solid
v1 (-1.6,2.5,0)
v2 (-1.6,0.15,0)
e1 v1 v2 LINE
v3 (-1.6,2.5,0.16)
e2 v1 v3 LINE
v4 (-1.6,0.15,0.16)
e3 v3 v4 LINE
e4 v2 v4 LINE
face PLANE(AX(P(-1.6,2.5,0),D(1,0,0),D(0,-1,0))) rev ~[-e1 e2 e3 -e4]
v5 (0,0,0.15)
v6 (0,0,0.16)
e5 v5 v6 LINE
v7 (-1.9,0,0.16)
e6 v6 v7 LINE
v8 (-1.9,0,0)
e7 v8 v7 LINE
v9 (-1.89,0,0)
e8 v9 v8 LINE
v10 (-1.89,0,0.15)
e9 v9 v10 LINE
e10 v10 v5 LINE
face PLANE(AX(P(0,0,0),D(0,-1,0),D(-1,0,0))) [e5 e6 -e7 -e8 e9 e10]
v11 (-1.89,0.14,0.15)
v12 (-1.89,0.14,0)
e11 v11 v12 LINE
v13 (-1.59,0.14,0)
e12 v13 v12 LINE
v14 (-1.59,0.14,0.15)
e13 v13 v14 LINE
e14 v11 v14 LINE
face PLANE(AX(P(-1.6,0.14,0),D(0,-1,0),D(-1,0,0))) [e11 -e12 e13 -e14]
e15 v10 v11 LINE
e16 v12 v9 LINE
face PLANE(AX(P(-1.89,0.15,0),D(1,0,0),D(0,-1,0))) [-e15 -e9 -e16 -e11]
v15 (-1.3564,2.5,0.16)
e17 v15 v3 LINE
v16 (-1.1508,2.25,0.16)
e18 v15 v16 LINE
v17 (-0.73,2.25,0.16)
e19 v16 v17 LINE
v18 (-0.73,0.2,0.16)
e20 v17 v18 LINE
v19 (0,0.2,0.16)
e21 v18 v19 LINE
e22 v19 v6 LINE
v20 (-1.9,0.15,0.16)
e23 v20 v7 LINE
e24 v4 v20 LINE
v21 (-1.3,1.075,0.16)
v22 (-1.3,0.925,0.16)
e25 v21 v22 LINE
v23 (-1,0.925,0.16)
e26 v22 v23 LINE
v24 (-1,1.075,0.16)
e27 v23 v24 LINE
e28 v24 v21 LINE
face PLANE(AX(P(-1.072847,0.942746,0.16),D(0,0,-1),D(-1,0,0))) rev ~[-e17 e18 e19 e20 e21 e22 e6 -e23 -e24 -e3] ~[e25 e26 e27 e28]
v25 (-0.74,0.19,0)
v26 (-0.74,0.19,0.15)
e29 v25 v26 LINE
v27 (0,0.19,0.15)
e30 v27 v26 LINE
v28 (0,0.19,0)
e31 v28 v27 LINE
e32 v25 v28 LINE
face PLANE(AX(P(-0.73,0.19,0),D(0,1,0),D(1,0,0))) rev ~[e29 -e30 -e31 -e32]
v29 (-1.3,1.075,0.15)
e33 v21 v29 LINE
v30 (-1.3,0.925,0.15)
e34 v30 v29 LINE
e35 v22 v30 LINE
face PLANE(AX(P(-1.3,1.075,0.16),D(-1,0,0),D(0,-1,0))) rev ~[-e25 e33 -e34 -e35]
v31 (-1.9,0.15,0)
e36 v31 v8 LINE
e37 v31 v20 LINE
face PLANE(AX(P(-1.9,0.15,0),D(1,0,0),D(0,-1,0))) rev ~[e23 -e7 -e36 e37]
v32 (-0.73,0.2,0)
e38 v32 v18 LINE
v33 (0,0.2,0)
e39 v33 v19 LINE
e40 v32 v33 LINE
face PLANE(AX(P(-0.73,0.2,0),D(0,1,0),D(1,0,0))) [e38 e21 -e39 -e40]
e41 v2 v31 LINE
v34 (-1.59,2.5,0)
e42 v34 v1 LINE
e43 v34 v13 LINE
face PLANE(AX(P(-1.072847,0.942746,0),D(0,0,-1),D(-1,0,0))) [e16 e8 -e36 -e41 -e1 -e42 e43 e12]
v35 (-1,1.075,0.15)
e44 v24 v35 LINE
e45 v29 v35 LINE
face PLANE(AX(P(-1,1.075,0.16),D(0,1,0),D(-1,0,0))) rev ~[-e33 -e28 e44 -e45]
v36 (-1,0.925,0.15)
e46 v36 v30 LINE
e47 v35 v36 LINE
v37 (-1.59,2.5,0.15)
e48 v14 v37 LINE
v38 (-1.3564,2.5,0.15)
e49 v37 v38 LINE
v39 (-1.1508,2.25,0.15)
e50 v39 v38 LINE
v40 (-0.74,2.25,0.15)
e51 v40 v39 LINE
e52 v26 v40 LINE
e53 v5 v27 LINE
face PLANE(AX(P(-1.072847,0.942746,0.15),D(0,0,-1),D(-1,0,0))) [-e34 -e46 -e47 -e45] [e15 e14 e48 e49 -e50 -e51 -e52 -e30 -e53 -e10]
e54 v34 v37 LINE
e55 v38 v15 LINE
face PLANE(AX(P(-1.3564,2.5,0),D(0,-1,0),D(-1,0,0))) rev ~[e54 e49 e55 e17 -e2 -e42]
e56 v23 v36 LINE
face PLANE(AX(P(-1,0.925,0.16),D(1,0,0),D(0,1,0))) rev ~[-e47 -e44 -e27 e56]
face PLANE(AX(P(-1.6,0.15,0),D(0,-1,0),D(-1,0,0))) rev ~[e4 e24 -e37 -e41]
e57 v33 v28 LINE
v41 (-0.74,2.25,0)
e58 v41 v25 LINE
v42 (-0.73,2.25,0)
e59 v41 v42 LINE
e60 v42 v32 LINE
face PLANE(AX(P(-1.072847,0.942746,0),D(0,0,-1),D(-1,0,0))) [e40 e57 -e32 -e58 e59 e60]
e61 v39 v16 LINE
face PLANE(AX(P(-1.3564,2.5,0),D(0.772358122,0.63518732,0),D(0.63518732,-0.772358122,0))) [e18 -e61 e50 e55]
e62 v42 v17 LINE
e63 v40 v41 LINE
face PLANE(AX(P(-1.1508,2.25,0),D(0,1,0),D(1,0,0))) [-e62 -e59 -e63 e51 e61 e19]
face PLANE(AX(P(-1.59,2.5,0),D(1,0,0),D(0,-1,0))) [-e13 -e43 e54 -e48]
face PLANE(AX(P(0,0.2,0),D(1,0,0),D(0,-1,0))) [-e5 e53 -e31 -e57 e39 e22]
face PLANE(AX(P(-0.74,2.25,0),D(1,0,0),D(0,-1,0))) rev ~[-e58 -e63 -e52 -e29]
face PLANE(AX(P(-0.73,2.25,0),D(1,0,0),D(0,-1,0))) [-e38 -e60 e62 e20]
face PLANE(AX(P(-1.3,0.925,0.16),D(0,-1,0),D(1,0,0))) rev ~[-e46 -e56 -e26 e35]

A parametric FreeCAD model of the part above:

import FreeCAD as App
import Part
import Sketcher
Q = App.Units.Quantity


def faces_at(feature, points):
    """Names of the faces that lie closest to the given points."""
    faces = feature.Shape.Faces
    near = lambda p: min(range(len(faces)), key=lambda i: faces[i].distToShape(Part.Vertex(*p))[0])
    return sorted({f"Face{near(p) + 1}" for p in points})

doc = App.newDocument("Part")
body = doc.addObject("PartDesign::Body", "Body")

# Sketch on XY plane
sketch1 = body.newObject("Sketcher::SketchObject", "Sketch")
sketch1.AttachmentSupport = (doc.getObject("XY_Plane"), [""])
sketch1.MapMode = "FlatFace"
sketch1.addGeometry(Part.LineSegment(App.Vector(0, 0, 0), App.Vector(0, 0.2, 0)), False)
sketch1.addGeometry(Part.LineSegment(App.Vector(0, 0.2, 0), App.Vector(-0.73, 0.2, 0)), False)
sketch1.addGeometry(Part.LineSegment(App.Vector(-0.73, 0.2, 0), App.Vector(-0.73, 2.25, 0)), False)
sketch1.addGeometry(Part.LineSegment(App.Vector(-0.73, 2.25, 0), App.Vector(-1.15, 2.25, 0)), False)
sketch1.addGeometry(Part.LineSegment(App.Vector(-1.15, 2.25, 0), App.Vector(-1.36, 2.5, 0)), False)
sketch1.addGeometry(Part.LineSegment(App.Vector(-1.36, 2.5, 0), App.Vector(-1.6, 2.5, 0)), False)
sketch1.addGeometry(Part.LineSegment(App.Vector(-1.6, 2.5, 0), App.Vector(-1.6, 0.15, 0)), False)
sketch1.addGeometry(Part.LineSegment(App.Vector(-1.6, 0.15, 0), App.Vector(-1.9, 0.15, 0)), False)
sketch1.addGeometry(Part.LineSegment(App.Vector(-1.9, 0.15, 0), App.Vector(-1.9, 0, 0)), False)
sketch1.addGeometry(Part.LineSegment(App.Vector(-1.9, 0, 0), App.Vector(0, 0, 0)), False)
sketch1.addConstraint(Sketcher.Constraint("Coincident", 0, 2, 1, 1))
sketch1.addConstraint(Sketcher.Constraint("Coincident", 1, 2, 2, 1))
sketch1.addConstraint(Sketcher.Constraint("Coincident", 2, 2, 3, 1))
sketch1.addConstraint(Sketcher.Constraint("Coincident", 3, 2, 4, 1))
sketch1.addConstraint(Sketcher.Constraint("Coincident", 4, 2, 5, 1))
sketch1.addConstraint(Sketcher.Constraint("Coincident", 5, 2, 6, 1))
sketch1.addConstraint(Sketcher.Constraint("Coincident", 6, 2, 7, 1))
sketch1.addConstraint(Sketcher.Constraint("Coincident", 7, 2, 8, 1))
sketch1.addConstraint(Sketcher.Constraint("Coincident", 8, 2, 9, 1))
sketch1.addConstraint(Sketcher.Constraint("Coincident", 9, 2, 0, 1))
sketch1.addConstraint(Sketcher.Constraint("Vertical", 0))
sketch1.addConstraint(Sketcher.Constraint("Horizontal", 1))
sketch1.addConstraint(Sketcher.Constraint("Vertical", 2))
sketch1.addConstraint(Sketcher.Constraint("Horizontal", 3))
sketch1.addConstraint(Sketcher.Constraint("Horizontal", 5))
sketch1.addConstraint(Sketcher.Constraint("Vertical", 6))
sketch1.addConstraint(Sketcher.Constraint("Horizontal", 7))
sketch1.addConstraint(Sketcher.Constraint("Vertical", 8))
sketch1.addConstraint(Sketcher.Constraint("Horizontal", 9))
sketch1.addConstraint(Sketcher.Constraint("Coincident", 9, 2, -1, 1))
sketch1.addConstraint(Sketcher.Constraint("DistanceX", 9, 1, 9, 2, Q("1.9 mm")))
sketch1.addConstraint(Sketcher.Constraint("DistanceX", 1, 2, 1, 1, Q("0.73 mm")))
sketch1.addConstraint(Sketcher.Constraint("DistanceX", 7, 2, 7, 1, Q("0.3 mm")))
sketch1.addConstraint(Sketcher.Constraint("DistanceY", 0, 1, 0, 2, Q("0.2 mm")))
sketch1.addConstraint(Sketcher.Constraint("DistanceY", 2, 1, 2, 2, Q("2.05 mm")))
sketch1.addConstraint(Sketcher.Constraint("DistanceY", 6, 2, 6, 1, Q("2.35 mm")))
sketch1.addConstraint(Sketcher.Constraint("DistanceY", 8, 2, 8, 1, Q("0.15 mm")))
sketch1.addConstraint(Sketcher.Constraint("DistanceX", 3, 2, 3, 1, Q("0.4208 mm")))
sketch1.addConstraint(Sketcher.Constraint("DistanceX", 5, 2, 5, 1, Q("0.2436 mm")))
pad1 = body.newObject("PartDesign::Pad", "Pad")
pad1.Profile = sketch1
pad1.Length = 0.16
doc.recompute()

thickness = body.newObject("PartDesign::Thickness", "Thickness")
thickness.Base = (pad1, faces_at(pad1, [
    (-0.931, 0.442, 0),
    (-0.298, 0, 0.132),
    (0, 0.169, 0.132),
    (-1.395, 2.5, 0.132),
    (-1.085, 2.25, 0.132),
    (-1.324, 2.461, 0.132),
]))
thickness.Value = 0.01
thickness.Reversed = True
thickness.Join = "Intersection"

# Sketch on XY plane
sketch2 = body.newObject("Sketcher::SketchObject", "Sketch001")
sketch2.AttachmentSupport = (doc.getObject("XY_Plane"), [""])
sketch2.MapMode = "FlatFace"
sketch2.AttachmentOffset = App.Placement(App.Vector(0, 0, 0.16), App.Rotation())
sketch2.addGeometry(Part.LineSegment(App.Vector(-1.3, 1.07, 0), App.Vector(-1.3, 0.93, 0)), False)
sketch2.addGeometry(Part.LineSegment(App.Vector(-1.3, 0.93, 0), App.Vector(-1, 0.93, 0)), False)
sketch2.addGeometry(Part.LineSegment(App.Vector(-1, 0.93, 0), App.Vector(-1, 1.07, 0)), False)
sketch2.addGeometry(Part.LineSegment(App.Vector(-1, 1.07, 0), App.Vector(-1.3, 1.07, 0)), False)
sketch2.addConstraint(Sketcher.Constraint("Coincident", 0, 2, 1, 1))
sketch2.addConstraint(Sketcher.Constraint("Coincident", 1, 2, 2, 1))
sketch2.addConstraint(Sketcher.Constraint("Coincident", 2, 2, 3, 1))
sketch2.addConstraint(Sketcher.Constraint("Coincident", 3, 2, 0, 1))
sketch2.addConstraint(Sketcher.Constraint("Vertical", 0))
sketch2.addConstraint(Sketcher.Constraint("Horizontal", 1))
sketch2.addConstraint(Sketcher.Constraint("Vertical", 2))
sketch2.addConstraint(Sketcher.Constraint("Horizontal", 3))
sketch2.addConstraint(Sketcher.Constraint("DistanceX", 1, 1, 1, 2, Q("0.3 mm")))
sketch2.addConstraint(Sketcher.Constraint("DistanceX", 1, 2, -1, 1, Q("1 mm")))
sketch2.addConstraint(Sketcher.Constraint("DistanceY", 0, 2, 0, 1, Q("0.15 mm")))
sketch2.addConstraint(Sketcher.Constraint("DistanceY", -1, 1, 0, 2, Q("0.925 mm")))
pocket1 = body.newObject("PartDesign::Pocket", "Pocket")
pocket1.Profile = sketch2
pocket1.Type = "ThroughAll"

doc.recompute()
